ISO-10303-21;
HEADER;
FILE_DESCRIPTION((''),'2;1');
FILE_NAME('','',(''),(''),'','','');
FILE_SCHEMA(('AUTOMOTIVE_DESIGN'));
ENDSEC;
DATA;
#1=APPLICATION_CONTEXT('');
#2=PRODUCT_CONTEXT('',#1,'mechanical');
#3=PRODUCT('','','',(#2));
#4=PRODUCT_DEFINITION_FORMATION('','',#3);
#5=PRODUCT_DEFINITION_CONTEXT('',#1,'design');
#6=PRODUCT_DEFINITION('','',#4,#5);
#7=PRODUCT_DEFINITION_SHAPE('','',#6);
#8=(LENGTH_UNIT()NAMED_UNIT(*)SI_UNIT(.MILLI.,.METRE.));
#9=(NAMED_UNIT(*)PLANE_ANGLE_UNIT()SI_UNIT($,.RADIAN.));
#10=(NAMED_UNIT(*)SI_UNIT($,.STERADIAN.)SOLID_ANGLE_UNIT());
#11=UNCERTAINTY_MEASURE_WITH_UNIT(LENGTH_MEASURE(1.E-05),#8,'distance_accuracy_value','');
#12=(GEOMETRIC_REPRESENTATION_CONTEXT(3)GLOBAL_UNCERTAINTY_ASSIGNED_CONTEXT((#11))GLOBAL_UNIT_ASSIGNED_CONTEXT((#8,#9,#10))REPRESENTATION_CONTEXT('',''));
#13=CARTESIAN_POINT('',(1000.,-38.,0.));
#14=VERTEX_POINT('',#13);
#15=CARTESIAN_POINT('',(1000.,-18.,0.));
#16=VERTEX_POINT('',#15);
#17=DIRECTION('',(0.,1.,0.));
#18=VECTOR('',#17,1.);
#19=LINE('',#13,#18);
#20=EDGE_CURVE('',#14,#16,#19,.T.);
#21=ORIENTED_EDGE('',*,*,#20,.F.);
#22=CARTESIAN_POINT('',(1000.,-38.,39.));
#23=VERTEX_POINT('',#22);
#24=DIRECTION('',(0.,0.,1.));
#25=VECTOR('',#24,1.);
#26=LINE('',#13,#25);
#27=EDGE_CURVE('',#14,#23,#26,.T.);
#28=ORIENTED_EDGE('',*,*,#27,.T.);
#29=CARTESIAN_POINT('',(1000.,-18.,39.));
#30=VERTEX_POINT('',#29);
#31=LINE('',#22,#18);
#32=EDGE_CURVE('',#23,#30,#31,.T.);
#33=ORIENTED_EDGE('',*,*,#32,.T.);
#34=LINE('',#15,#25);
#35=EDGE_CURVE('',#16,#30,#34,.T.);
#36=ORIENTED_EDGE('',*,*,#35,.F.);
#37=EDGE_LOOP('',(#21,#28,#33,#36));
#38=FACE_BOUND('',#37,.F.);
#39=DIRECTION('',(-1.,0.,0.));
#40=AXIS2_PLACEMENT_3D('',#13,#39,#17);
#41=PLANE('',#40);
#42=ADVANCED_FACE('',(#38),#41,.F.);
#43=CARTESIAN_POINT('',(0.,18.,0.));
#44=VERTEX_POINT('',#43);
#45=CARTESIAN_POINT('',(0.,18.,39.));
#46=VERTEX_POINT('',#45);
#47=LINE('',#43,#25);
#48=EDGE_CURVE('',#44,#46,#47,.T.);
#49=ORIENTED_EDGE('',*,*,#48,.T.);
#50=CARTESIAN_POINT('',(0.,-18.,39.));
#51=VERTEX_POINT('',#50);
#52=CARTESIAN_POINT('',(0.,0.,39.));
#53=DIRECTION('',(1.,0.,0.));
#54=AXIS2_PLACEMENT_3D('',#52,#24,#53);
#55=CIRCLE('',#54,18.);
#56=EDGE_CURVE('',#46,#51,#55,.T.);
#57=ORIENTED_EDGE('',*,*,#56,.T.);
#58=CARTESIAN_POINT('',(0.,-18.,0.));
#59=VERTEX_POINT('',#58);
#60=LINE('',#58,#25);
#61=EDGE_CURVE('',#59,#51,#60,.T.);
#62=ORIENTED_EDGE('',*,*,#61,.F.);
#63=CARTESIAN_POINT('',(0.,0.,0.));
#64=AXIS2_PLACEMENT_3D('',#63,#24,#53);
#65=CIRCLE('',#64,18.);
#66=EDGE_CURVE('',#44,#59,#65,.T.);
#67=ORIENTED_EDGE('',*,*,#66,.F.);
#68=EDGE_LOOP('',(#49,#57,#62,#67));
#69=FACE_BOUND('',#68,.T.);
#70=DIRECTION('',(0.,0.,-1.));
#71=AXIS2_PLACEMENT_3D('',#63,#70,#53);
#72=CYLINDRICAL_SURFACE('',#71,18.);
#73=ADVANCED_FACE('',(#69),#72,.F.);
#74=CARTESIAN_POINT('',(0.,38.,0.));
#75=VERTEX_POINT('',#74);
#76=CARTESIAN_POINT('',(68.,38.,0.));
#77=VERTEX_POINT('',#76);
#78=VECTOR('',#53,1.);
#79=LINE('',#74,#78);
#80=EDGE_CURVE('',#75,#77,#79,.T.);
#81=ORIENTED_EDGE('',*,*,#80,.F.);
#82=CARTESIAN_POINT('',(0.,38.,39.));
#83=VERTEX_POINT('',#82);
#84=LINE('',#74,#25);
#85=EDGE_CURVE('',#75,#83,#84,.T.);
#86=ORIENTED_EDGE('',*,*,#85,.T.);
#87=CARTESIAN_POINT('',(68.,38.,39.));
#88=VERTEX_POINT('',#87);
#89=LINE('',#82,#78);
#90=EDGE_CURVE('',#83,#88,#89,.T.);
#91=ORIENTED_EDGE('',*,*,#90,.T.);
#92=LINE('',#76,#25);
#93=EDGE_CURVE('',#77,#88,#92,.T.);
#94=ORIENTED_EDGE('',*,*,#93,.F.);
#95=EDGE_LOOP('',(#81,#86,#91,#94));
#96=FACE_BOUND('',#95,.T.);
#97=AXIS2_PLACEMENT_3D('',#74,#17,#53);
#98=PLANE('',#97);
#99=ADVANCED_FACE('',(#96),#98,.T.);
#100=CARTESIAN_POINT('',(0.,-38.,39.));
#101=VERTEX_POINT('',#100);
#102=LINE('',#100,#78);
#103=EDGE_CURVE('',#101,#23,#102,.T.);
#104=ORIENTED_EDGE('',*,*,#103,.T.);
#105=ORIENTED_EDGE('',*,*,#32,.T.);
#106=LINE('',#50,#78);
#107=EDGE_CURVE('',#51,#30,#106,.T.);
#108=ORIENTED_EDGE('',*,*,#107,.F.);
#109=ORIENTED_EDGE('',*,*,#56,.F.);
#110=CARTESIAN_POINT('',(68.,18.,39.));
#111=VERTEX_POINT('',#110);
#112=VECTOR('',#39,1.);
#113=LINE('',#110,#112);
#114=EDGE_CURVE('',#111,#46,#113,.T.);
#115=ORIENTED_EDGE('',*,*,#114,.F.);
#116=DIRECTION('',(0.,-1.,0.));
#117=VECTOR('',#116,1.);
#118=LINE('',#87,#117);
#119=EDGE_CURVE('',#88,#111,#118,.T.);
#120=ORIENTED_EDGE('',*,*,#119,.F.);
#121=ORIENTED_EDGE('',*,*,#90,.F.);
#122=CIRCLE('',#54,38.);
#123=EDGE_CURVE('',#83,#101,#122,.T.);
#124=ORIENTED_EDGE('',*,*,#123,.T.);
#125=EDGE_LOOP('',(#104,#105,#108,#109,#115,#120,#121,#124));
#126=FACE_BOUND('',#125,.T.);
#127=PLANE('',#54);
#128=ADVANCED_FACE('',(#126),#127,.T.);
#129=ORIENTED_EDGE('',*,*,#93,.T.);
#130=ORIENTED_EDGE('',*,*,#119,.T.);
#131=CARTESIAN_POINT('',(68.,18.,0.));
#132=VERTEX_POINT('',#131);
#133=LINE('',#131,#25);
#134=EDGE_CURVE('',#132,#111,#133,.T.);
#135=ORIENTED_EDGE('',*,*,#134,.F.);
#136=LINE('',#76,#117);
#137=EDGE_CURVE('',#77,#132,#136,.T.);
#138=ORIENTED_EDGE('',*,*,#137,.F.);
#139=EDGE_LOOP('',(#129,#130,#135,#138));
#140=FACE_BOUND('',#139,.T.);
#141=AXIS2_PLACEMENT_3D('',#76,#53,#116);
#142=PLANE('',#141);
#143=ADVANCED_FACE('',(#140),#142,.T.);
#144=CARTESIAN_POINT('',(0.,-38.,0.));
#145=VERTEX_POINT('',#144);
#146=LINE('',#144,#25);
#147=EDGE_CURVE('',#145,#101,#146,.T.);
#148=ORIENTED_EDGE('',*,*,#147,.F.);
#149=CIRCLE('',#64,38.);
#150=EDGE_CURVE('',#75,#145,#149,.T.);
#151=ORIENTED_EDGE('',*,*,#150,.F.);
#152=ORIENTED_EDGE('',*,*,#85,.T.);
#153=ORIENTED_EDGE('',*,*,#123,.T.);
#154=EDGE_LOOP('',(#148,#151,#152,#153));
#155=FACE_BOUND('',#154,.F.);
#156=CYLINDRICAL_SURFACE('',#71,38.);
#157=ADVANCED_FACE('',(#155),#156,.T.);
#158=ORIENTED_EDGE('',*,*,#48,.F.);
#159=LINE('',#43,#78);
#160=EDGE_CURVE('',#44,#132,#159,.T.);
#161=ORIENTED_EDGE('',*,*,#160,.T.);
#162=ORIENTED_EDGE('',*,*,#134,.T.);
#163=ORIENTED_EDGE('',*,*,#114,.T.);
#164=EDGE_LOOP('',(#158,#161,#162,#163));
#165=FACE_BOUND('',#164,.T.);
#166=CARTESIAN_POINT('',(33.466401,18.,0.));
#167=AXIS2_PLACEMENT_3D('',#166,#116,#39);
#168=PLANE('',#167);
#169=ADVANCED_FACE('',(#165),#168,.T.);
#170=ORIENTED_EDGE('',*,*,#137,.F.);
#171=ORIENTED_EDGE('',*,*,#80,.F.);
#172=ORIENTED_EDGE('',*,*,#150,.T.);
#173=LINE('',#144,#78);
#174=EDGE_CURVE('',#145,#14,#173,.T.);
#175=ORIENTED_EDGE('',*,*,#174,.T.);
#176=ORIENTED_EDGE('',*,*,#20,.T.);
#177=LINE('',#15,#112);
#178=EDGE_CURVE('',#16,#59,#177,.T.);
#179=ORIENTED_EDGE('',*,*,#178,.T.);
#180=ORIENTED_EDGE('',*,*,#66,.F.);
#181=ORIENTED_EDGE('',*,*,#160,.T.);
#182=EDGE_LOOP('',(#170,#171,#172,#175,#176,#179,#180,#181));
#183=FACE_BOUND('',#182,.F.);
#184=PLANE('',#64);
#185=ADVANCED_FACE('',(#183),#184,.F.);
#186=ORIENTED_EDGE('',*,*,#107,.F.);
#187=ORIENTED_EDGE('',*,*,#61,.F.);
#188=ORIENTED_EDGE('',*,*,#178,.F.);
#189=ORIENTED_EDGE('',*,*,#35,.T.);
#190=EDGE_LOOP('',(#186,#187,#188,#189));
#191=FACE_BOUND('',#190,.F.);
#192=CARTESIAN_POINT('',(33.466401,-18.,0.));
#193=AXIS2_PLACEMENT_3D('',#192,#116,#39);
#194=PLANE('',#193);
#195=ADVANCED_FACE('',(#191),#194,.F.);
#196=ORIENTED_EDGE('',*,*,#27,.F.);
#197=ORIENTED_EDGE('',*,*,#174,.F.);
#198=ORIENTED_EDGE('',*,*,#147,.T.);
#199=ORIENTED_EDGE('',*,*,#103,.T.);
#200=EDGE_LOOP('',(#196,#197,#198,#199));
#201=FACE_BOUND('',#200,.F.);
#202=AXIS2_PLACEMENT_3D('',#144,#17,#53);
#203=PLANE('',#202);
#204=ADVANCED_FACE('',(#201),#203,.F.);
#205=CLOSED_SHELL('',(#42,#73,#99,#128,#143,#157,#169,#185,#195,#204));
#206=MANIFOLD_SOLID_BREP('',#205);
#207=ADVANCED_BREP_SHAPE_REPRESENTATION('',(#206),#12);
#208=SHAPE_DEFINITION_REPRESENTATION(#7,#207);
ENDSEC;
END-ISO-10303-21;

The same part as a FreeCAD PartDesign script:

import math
import FreeCAD as App
import Part
import Sketcher
from FreeCAD import Vector
Q = App.Units.Quantity

doc = App.newDocument("Part")
body = doc.addObject("PartDesign::Body", "Body")

# Sketch on XY plane
sketch1 = doc.addObject("Sketcher::SketchObject", "Sketch")
body.addObject(sketch1)
sketch1.AttachmentSupport = (doc.XY_Plane, [""])
sketch1.MapMode = "FlatFace"
sketch1.addGeometry([
    Part.ArcOfCircle(Part.Circle(Vector(0, 0, 0), Vector(0, 0, 1), 18), math.radians(90), math.radians(270)),  # 0
    Part.LineSegment(Vector(0, 18, 0), Vector(68, 18, 0)),  # 1
    Part.LineSegment(Vector(68, 18, 0), Vector(68, 38, 0)),  # 2
    Part.LineSegment(Vector(68, 38, 0), Vector(0, 38, 0)),  # 3
    Part.ArcOfCircle(Part.Circle(Vector(0, 0, 0), Vector(0, 0, 1), 38), math.radians(90), math.radians(270)),  # 4
    Part.LineSegment(Vector(0, -38, 0), Vector(1000, -38, 0)),  # 5
    Part.LineSegment(Vector(1000, -38, 0), Vector(1000, -18, 0)),  # 6
    Part.LineSegment(Vector(1000, -18, 0), Vector(0, -18, 0)),  # 7
], False)
sketch1.addConstraint([
    Sketcher.Constraint("Tangent", 0, 1, 1, 1),
    Sketcher.Constraint("Coincident", 1, 2, 2, 1),
    Sketcher.Constraint("Coincident", 2, 2, 3, 1),
    Sketcher.Constraint("Tangent", 3, 2, 4, 1),
    Sketcher.Constraint("Tangent", 4, 2, 5, 1),
    Sketcher.Constraint("Coincident", 5, 2, 6, 1),
    Sketcher.Constraint("Coincident", 6, 2, 7, 1),
    Sketcher.Constraint("Tangent", 7, 2, 0, 2),
    Sketcher.Constraint("Horizontal", 1),
    Sketcher.Constraint("Vertical", 2),
    Sketcher.Constraint("Horizontal", 3),
    Sketcher.Constraint("Horizontal", 5),
    Sketcher.Constraint("Vertical", 6),
    Sketcher.Constraint("Horizontal", 7),
    Sketcher.Constraint("Coincident", 0, 3, -1, 1),
    Sketcher.Constraint("Coincident", 4, 3, -1, 1),
    Sketcher.Constraint("Radius", 4, Q("38 mm")),
    Sketcher.Constraint("DistanceX", 1, 1, 1, 2, Q("68 mm")),
    Sketcher.Constraint("DistanceX", 5, 1, 5, 2, Q("1000 mm")),
    Sketcher.Constraint("DistanceY", 2, 1, 2, 2, Q("20 mm")),
])
pad1 = doc.addObject("PartDesign::Pad", "Pad")
body.addObject(pad1)
pad1.Profile = sketch1
pad1.Length = 39

doc.recompute()
